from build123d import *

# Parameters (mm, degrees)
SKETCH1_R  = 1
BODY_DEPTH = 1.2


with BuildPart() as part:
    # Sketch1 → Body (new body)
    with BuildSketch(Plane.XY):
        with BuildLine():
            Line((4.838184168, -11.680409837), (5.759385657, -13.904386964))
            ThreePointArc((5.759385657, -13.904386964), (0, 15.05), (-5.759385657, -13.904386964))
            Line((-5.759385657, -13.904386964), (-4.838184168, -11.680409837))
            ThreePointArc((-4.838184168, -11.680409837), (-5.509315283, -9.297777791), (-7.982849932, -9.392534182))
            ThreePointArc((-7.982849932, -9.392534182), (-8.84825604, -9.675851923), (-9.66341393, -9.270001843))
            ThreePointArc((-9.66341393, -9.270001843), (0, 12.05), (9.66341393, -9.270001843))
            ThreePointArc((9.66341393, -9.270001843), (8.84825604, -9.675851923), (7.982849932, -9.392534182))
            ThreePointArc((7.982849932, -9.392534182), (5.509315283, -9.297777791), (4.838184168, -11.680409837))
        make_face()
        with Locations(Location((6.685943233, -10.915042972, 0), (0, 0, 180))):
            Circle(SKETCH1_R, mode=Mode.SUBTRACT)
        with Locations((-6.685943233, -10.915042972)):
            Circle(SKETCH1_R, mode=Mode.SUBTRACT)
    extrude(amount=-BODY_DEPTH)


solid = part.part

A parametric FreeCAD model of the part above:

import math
import FreeCAD as App
import Part
import Sketcher
Q = App.Units.Quantity

doc = App.newDocument("Part")
body = doc.addObject("PartDesign::Body", "Body")

# Sketch on XY plane
sketch1 = body.newObject("Sketcher::SketchObject", "Sketch")
sketch1.AttachmentSupport = (doc.getObject("XY_Plane"), [""])
sketch1.MapMode = "FlatFace"
sketch1.addGeometry([
    Part.LineSegment(App.Vector(4.8, -11.7, 0), App.Vector(5.8, -13.9, 0)),  # 0
    Part.ArcOfCircle(Part.Circle(App.Vector(0, 0, 0), App.Vector(0, 0, 1), 15.1), math.radians(-67), math.radians(247)),  # 1
    Part.LineSegment(App.Vector(-5.8, -13.9, 0), App.Vector(-4.8, -11.7, 0)),  # 2
    Part.ArcOfCircle(Part.Circle(App.Vector(-6.7, -10.9, 0), App.Vector(0, 0, 1), 2), math.radians(-22), math.radians(130)),  # 3
    Part.ArcOfCircle(Part.Circle(App.Vector(-8.8, -8.5, 0), App.Vector(0, 0, 1), 1.2), math.radians(-139), math.radians(-50)),  # 4
    Part.ArcOfCircle(Part.Circle(App.Vector(0, -0.8, 0), App.Vector(0, 0, 1), 12.8), math.radians(-41), math.radians(221)),  # 5
    Part.ArcOfCircle(Part.Circle(App.Vector(8.8, -8.5, 0), App.Vector(0, 0, 1), 1.2), math.radians(-130), math.radians(-41)),  # 6
    Part.ArcOfCircle(Part.Circle(App.Vector(6.7, -10.9, 0), App.Vector(0, 0, 1), 2), math.radians(50), math.radians(202)),  # 7
    Part.Circle(App.Vector(-6.7, -10.9, 0), App.Vector(0, 0, 1), 1),  # 8
    Part.Circle(App.Vector(6.7, -10.9, 0), App.Vector(0, 0, 1), 1),  # 9
], False)
sketch1.addConstraint([
    Sketcher.Constraint("Coincident", 0, 2, 1, 1),
    Sketcher.Constraint("Coincident", 1, 2, 2, 1),
    Sketcher.Constraint("Tangent", 2, 2, 3, 1),
    Sketcher.Constraint("Tangent", 3, 2, 4, 2),
    Sketcher.Constraint("Tangent", 4, 1, 5, 2),
    Sketcher.Constraint("Tangent", 5, 1, 6, 2),
    Sketcher.Constraint("Tangent", 6, 1, 7, 1),
    Sketcher.Constraint("Tangent", 7, 2, 0, 1),
    Sketcher.Constraint("Coincident", 1, 3, -1, 1),
    Sketcher.Constraint("Coincident", 8, 3, 3, 3),
    Sketcher.Constraint("Coincident", 9, 3, 7, 3),
    Sketcher.Constraint("Equal", 4, 6),
    Sketcher.Constraint("Equal", 3, 7),
    Sketcher.Constraint("Equal", 8, 9),
    Sketcher.Constraint("Symmetric", 4, 3, 6, 3, -2),
    Sketcher.Constraint("Symmetric", 2, 2, 7, 2, -2),
    Sketcher.Constraint("Diameter", 8, 2.0),
    Sketcher.Constraint("Radius", 3, 2.0),
    Sketcher.Constraint("Radius", 4, 1.2),
    Sketcher.Constraint("Radius", 1, 15.05),
    Sketcher.Constraint("Radius", 5, 12.85),
    Sketcher.Constraint("Angle", 0, Q("-67.5 deg")),
    Sketcher.Constraint("DistanceY", 5, 3, -1, 1, 0.8),
    Sketcher.Constraint("DistanceY", 4, 1, -1, 1, 9.270002),
    Sketcher.Constraint("DistanceX", 1, 2, 2, 2, 0.921201),
])
pad1 = body.newObject("PartDesign::Pad", "Pad")
pad1.Profile = sketch1
pad1.Length = 1.2
pad1.Reversed = True

doc.recompute()
